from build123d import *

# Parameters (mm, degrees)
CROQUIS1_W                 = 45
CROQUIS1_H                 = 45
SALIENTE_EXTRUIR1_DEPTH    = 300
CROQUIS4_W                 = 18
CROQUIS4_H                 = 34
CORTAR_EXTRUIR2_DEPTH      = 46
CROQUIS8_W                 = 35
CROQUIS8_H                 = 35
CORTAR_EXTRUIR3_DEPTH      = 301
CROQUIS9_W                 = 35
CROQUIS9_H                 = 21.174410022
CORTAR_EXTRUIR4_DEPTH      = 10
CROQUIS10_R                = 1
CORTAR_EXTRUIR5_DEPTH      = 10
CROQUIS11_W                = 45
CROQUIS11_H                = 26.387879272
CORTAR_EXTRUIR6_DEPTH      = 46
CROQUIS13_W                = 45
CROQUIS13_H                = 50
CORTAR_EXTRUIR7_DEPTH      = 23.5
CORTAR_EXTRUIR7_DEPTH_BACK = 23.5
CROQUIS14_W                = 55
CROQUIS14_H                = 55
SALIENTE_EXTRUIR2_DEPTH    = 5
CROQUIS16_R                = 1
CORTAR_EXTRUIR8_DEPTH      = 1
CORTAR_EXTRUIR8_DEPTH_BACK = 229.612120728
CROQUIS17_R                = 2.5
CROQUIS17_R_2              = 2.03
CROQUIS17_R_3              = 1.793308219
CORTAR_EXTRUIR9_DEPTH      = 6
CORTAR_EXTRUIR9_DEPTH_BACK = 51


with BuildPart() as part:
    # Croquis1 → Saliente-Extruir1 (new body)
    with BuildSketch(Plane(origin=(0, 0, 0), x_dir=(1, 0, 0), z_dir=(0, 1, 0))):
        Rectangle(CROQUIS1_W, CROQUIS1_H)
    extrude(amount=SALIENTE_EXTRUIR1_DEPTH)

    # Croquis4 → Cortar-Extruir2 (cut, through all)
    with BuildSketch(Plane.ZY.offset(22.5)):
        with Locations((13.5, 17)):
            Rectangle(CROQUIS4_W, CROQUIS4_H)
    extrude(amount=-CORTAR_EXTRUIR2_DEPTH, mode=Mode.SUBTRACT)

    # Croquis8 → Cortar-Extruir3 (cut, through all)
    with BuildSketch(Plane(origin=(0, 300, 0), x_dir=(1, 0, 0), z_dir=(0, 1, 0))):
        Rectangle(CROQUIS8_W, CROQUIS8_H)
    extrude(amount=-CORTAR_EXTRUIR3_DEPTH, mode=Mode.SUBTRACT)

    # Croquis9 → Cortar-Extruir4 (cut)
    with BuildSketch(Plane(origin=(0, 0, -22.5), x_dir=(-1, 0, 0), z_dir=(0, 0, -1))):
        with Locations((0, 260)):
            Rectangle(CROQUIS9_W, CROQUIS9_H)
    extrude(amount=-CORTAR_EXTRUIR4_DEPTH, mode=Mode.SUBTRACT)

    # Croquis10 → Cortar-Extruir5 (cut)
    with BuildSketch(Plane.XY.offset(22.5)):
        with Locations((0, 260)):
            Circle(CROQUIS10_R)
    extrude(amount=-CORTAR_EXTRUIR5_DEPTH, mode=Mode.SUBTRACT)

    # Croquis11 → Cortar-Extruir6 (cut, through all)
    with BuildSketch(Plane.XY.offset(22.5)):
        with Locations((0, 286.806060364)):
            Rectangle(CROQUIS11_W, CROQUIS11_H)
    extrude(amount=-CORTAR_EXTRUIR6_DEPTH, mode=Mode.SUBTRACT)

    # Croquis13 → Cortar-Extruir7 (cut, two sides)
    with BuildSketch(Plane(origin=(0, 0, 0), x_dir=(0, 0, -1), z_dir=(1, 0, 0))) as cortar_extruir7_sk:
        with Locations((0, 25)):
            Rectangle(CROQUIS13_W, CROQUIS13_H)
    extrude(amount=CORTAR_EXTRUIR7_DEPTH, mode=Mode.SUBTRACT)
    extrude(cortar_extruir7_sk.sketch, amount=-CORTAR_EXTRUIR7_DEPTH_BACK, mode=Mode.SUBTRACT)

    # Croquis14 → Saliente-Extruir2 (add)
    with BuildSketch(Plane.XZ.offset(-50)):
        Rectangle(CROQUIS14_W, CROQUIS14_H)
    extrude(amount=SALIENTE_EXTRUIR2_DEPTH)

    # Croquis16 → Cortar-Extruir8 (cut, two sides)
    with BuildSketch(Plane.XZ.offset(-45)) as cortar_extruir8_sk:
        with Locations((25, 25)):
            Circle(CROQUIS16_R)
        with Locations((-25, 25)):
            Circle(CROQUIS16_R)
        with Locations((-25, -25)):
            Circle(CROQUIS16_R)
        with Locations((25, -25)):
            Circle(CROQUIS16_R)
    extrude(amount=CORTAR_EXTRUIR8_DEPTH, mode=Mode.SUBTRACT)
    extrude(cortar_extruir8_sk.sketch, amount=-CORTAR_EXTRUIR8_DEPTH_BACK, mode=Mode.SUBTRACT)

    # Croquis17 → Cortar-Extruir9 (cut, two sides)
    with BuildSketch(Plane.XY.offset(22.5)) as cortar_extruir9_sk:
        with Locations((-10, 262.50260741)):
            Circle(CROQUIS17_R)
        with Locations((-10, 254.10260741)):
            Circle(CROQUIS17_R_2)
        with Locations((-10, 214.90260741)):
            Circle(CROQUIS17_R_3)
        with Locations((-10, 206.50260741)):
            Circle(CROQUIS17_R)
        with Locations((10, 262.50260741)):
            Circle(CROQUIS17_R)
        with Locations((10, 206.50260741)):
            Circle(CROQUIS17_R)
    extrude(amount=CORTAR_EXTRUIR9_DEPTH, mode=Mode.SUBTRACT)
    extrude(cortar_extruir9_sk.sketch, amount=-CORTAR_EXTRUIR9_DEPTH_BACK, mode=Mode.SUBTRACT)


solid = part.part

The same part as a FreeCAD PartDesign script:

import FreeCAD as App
import Part
import Sketcher

V = App.Vector


def add_polygon(sketch, points):
    """Adds a closed chain of lines whose ends are joined by coincident constraints."""
    first, n = sketch.GeometryCount, len(points)
    for a, b in zip(points, points[1:] + points[:1]):
        sketch.addGeometry(Part.LineSegment(App.Vector(*a, 0), App.Vector(*b, 0)), False)
    for i in range(n):
        sketch.addConstraint(Sketcher.Constraint("Coincident", first + i, 2, first + (i + 1) % n, 1))

doc = App.newDocument("Part")
body = doc.addObject("PartDesign::Body", "Body")

sketch1 = doc.addObject("Sketcher::SketchObject", "Sketch")
body.addObject(sketch1)
sketch1.AttachmentSupport = (doc.XZ_Plane, [""])
sketch1.MapMode = "FlatFace"
add_polygon(sketch1, [(-22, -22), (-22, 22), (22, 22), (22, -22)])
sketch1.addConstraint([
    Sketcher.Constraint("Vertical", 0),
    Sketcher.Constraint("Horizontal", 1),
    Sketcher.Constraint("Vertical", 2),
    Sketcher.Constraint("Horizontal", 3),
    Sketcher.Constraint("Symmetric", 0, 2, 2, 2, -1, 1),
    Sketcher.Constraint("Equal", 3, 0),
    Sketcher.Constraint("DistanceX", 1, 1, 1, 2, 45.0),
])
pad1 = doc.addObject("PartDesign::Pad", "Pad")
body.addObject(pad1)
pad1.Profile = sketch1
pad1.Length = 300
pad1.Reversed = True

sketch2 = doc.addObject("Sketcher::SketchObject", "Sketch001")
body.addObject(sketch2)
sketch2.AttachmentSupport = (doc.YZ_Plane, [""])
sketch2.MapMode = "FlatFace"
sketch2.AttachmentOffset = App.Placement(V(0, 0, -22.5), App.Rotation())
add_polygon(sketch2, [(34, 4), (0, 4), (0, 22), (34, 22)])
sketch2.addConstraint([
    Sketcher.Constraint("Horizontal", 0),
    Sketcher.Constraint("Vertical", 1),
    Sketcher.Constraint("Horizontal", 2),
    Sketcher.Constraint("Vertical", 3),
    Sketcher.Constraint("PointOnObject", 0, 2, -2),
    Sketcher.Constraint("DistanceX", 0, 2, 0, 1, 34.0),
    Sketcher.Constraint("DistanceY", 1, 1, 1, 2, 18.0),
    Sketcher.Constraint("DistanceY", -1, 1, 0, 2, 4.5),
])
pocket1 = doc.addObject("PartDesign::Pocket", "Pocket")
body.addObject(pocket1)
pocket1.Profile = sketch2
pocket1.Type = "ThroughAll"
pocket1.Reversed = True

sketch3 = doc.addObject("Sketcher::SketchObject", "Sketch002")
body.addObject(sketch3)
sketch3.AttachmentSupport = (doc.XZ_Plane, [""])
sketch3.MapMode = "FlatFace"
sketch3.AttachmentOffset = App.Placement(V(0, 0, -300), App.Rotation())
add_polygon(sketch3, [(-18, -18), (-18, 18), (18, 18), (18, -18)])
sketch3.addConstraint([
    Sketcher.Constraint("Vertical", 0),
    Sketcher.Constraint("Horizontal", 1),
    Sketcher.Constraint("Vertical", 2),
    Sketcher.Constraint("Horizontal", 3),
    Sketcher.Constraint("Symmetric", 0, 2, 2, 2, -1, 1),
    Sketcher.Constraint("Equal", 3, 0),
    Sketcher.Constraint("DistanceX", 1, 1, 1, 2, 35.0),
])
pocket2 = doc.addObject("PartDesign::Pocket", "Pocket001")
body.addObject(pocket2)
pocket2.Profile = sketch3
pocket2.Type = "ThroughAll"
pocket2.Reversed = True

sketch4 = doc.addObject("Sketcher::SketchObject", "Sketch003")
body.addObject(sketch4)
sketch4.AttachmentSupport = (doc.XY_Plane, [""])
sketch4.MapMode = "FlatFace"
sketch4.AttachmentOffset = App.Placement(V(0, 0, -22.5), App.Rotation())
add_polygon(sketch4, [(18, 271), (18, 249), (-18, 249), (-18, 271)])
sketch4.addConstraint([
    Sketcher.Constraint("Vertical", 0),
    Sketcher.Constraint("Horizontal", 1),
    Sketcher.Constraint("Vertical", 2),
    Sketcher.Constraint("Horizontal", 3),
    Sketcher.Constraint("DistanceX", 1, 2, 1, 1, 35.0),
    Sketcher.Constraint("DistanceX", -1, 1, 0, 2, 17.5),
    Sketcher.Constraint("DistanceY", 0, 2, 0, 1, 21.17441),
    Sketcher.Constraint("DistanceY", -1, 1, 0, 2, 249.412795),
])
pocket3 = doc.addObject("PartDesign::Pocket", "Pocket002")
body.addObject(pocket3)
pocket3.Profile = sketch4
pocket3.Length = 10
pocket3.Reversed = True

sketch5 = doc.addObject("Sketcher::SketchObject", "Sketch004")
body.addObject(sketch5)
sketch5.AttachmentSupport = (doc.XY_Plane, [""])
sketch5.MapMode = "FlatFace"
sketch5.AttachmentOffset = App.Placement(V(0, 0, 22.5), App.Rotation())
sketch5.addGeometry(Part.Circle(V(0, 260, 0), V(0, 0, 1), 1), False)
sketch5.addConstraint([
    Sketcher.Constraint("PointOnObject", 0, 3, -2),
    Sketcher.Constraint("Diameter", 0, 2.0),
    Sketcher.Constraint("DistanceY", -1, 1, 0, 3, 260.0),
])
pocket4 = doc.addObject("PartDesign::Pocket", "Pocket003")
body.addObject(pocket4)
pocket4.Profile = sketch5
pocket4.Length = 10

sketch6 = doc.addObject("Sketcher::SketchObject", "Sketch005")
body.addObject(sketch6)
sketch6.AttachmentSupport = (doc.XY_Plane, [""])
sketch6.MapMode = "FlatFace"
sketch6.AttachmentOffset = App.Placement(V(0, 0, 22.5), App.Rotation())
add_polygon(sketch6, [(-22, 300), (-22, 274), (22, 274), (22, 300)])
sketch6.addConstraint([
    Sketcher.Constraint("Vertical", 0),
    Sketcher.Constraint("Horizontal", 1),
    Sketcher.Constraint("Vertical", 2),
    Sketcher.Constraint("Horizontal", 3),
    Sketcher.Constraint("DistanceX", 1, 1, 1, 2, 45.0),
    Sketcher.Constraint("DistanceY", -1, 1, 2, 2, 300.0),
    Sketcher.Constraint("DistanceX", 0, 2, -1, 1, 22.5),
    Sketcher.Constraint("DistanceY", 0, 2, 0, 1, 26.387879),
])
pocket5 = doc.addObject("PartDesign::Pocket", "Pocket004")
body.addObject(pocket5)
pocket5.Profile = sketch6
pocket5.Type = "ThroughAll"

sketch7 = doc.addObject("Sketcher::SketchObject", "Sketch006")
body.addObject(sketch7)
sketch7.AttachmentSupport = (doc.YZ_Plane, [""])
sketch7.MapMode = "FlatFace"
add_polygon(sketch7, [(50, 22), (0, 22), (0, -22), (50, -22)])
sketch7.addConstraint([
    Sketcher.Constraint("Horizontal", 0),
    Sketcher.Constraint("Vertical", 1),
    Sketcher.Constraint("Horizontal", 2),
    Sketcher.Constraint("Vertical", 3),
    Sketcher.Constraint("Symmetric", 0, 2, 1, 2, -1, 1),
    Sketcher.Constraint("DistanceX", 0, 2, 0, 1, 50.0),
    Sketcher.Constraint("DistanceY", 1, 2, 1, 1, 45.0),
])
pocket6 = doc.addObject("PartDesign::Pocket", "Pocket005")
body.addObject(pocket6)
pocket6.Profile = sketch7
pocket6.Type = "ThroughAll"
pocket6.Midplane = True

sketch8 = doc.addObject("Sketcher::SketchObject", "Sketch007")
body.addObject(sketch8)
sketch8.AttachmentSupport = (doc.XZ_Plane, [""])
sketch8.MapMode = "FlatFace"
sketch8.AttachmentOffset = App.Placement(V(0, 0, -50), App.Rotation())
add_polygon(sketch8, [(-28, 28), (-28, -28), (28, -28), (28, 28)])
sketch8.addConstraint([
    Sketcher.Constraint("Vertical", 0),
    Sketcher.Constraint("Horizontal", 1),
    Sketcher.Constraint("Vertical", 2),
    Sketcher.Constraint("Horizontal", 3),
    Sketcher.Constraint("Symmetric", 0, 2, 2, 2, -1, 1),
    Sketcher.Constraint("Equal", 3, 0),
    Sketcher.Constraint("DistanceX", 1, 1, 1, 2, 55.0),
])
pad2 = doc.addObject("PartDesign::Pad", "Pad001")
body.addObject(pad2)
pad2.Profile = sketch8
pad2.Length = 5

sketch9 = doc.addObject("Sketcher::SketchObject", "Sketch008")
body.addObject(sketch9)
sketch9.AttachmentSupport = (doc.XZ_Plane, [""])
sketch9.MapMode = "FlatFace"
sketch9.AttachmentOffset = App.Placement(V(0, 0, -45), App.Rotation())
sketch9.addGeometry([
    Part.Circle(V(25, 25, 0), V(0, 0, 1), 1),
    Part.Circle(V(-25, 25, 0), V(0, 0, 1), 1),
    Part.Circle(V(-25, -25, 0), V(0, 0, 1), 1),
    Part.Circle(V(25, -25, 0), V(0, 0, 1), 1),
], False)
sketch9.addConstraint([
    Sketcher.Constraint("Equal", 0, 1),
    Sketcher.Constraint("Equal", 1, 2),
    Sketcher.Constraint("Equal", 2, 3),
    Sketcher.Constraint("Symmetric", 0, 3, 2, 3, -1, 1),
    Sketcher.Constraint("Symmetric", 1, 3, 3, 3, -1, 1),
    Sketcher.Constraint("Symmetric", 0, 3, 1, 3, -2),
    Sketcher.Constraint("Diameter", 0, 2.0),
    Sketcher.Constraint("DistanceX", -1, 1, 0, 3, 25.0),
    Sketcher.Constraint("DistanceY", -1, 1, 0, 3, 25.0),
])
pocket7 = doc.addObject("PartDesign::Pocket", "Pocket006")
body.addObject(pocket7)
pocket7.Profile = sketch9
pocket7.Type = "ThroughAll"
pocket7.Midplane = True

sketch10 = doc.addObject("Sketcher::SketchObject", "Sketch009")
body.addObject(sketch10)
sketch10.AttachmentSupport = (doc.XY_Plane, [""])
sketch10.MapMode = "FlatFace"
sketch10.AttachmentOffset = App.Placement(V(0, 0, 22.5), App.Rotation())
sketch10.addGeometry([
    Part.Circle(V(-10, 262.5, 0), V(0, 0, 1), 2.5),
    Part.Circle(V(-10, 254.1, 0), V(0, 0, 1), 2),
    Part.Circle(V(-10, 214.9, 0), V(0, 0, 1), 1.8),
    Part.Circle(V(-10, 206.5, 0), V(0, 0, 1), 2.5),
    Part.Circle(V(10, 262.5, 0), V(0, 0, 1), 2.5),
    Part.Circle(V(10, 206.5, 0), V(0, 0, 1), 2.5),
], False)
sketch10.addConstraint([
    Sketcher.Constraint("Equal", 0, 3),
    Sketcher.Constraint("Equal", 3, 4),
    Sketcher.Constraint("Equal", 4, 5),
    Sketcher.Constraint("Symmetric", 0, 3, 4, 3, -2),
    Sketcher.Constraint("Symmetric", 3, 3, 5, 3, -2),
    Sketcher.Constraint("Vertical", 0, 3, 1, 3),
    Sketcher.Constraint("Vertical", 1, 3, 2, 3),
    Sketcher.Constraint("Vertical", 2, 3, 3, 3),
    Sketcher.Constraint("Diameter", 0, 5.0),
    Sketcher.Constraint("Diameter", 1, 4.06),
    Sketcher.Constraint("DistanceX", 0, 3, -1, 1, 10.0),
    Sketcher.Constraint("DistanceY", 3, 3, 0, 3, 56.0),
    Sketcher.Constraint("DistanceY", 1, 3, 0, 3, 8.4),
    Sketcher.Constraint("DistanceY", 2, 3, 1, 3, 39.2),
    Sketcher.Constraint("Diameter", 2, 3.586616),
    Sketcher.Constraint("DistanceY", -1, 1, 0, 3, 262.502607),
])
pocket8 = doc.addObject("PartDesign::Pocket", "Pocket007")
body.addObject(pocket8)
pocket8.Profile = sketch10
pocket8.Type = "ThroughAll"
pocket8.Midplane = True

doc.recompute()
